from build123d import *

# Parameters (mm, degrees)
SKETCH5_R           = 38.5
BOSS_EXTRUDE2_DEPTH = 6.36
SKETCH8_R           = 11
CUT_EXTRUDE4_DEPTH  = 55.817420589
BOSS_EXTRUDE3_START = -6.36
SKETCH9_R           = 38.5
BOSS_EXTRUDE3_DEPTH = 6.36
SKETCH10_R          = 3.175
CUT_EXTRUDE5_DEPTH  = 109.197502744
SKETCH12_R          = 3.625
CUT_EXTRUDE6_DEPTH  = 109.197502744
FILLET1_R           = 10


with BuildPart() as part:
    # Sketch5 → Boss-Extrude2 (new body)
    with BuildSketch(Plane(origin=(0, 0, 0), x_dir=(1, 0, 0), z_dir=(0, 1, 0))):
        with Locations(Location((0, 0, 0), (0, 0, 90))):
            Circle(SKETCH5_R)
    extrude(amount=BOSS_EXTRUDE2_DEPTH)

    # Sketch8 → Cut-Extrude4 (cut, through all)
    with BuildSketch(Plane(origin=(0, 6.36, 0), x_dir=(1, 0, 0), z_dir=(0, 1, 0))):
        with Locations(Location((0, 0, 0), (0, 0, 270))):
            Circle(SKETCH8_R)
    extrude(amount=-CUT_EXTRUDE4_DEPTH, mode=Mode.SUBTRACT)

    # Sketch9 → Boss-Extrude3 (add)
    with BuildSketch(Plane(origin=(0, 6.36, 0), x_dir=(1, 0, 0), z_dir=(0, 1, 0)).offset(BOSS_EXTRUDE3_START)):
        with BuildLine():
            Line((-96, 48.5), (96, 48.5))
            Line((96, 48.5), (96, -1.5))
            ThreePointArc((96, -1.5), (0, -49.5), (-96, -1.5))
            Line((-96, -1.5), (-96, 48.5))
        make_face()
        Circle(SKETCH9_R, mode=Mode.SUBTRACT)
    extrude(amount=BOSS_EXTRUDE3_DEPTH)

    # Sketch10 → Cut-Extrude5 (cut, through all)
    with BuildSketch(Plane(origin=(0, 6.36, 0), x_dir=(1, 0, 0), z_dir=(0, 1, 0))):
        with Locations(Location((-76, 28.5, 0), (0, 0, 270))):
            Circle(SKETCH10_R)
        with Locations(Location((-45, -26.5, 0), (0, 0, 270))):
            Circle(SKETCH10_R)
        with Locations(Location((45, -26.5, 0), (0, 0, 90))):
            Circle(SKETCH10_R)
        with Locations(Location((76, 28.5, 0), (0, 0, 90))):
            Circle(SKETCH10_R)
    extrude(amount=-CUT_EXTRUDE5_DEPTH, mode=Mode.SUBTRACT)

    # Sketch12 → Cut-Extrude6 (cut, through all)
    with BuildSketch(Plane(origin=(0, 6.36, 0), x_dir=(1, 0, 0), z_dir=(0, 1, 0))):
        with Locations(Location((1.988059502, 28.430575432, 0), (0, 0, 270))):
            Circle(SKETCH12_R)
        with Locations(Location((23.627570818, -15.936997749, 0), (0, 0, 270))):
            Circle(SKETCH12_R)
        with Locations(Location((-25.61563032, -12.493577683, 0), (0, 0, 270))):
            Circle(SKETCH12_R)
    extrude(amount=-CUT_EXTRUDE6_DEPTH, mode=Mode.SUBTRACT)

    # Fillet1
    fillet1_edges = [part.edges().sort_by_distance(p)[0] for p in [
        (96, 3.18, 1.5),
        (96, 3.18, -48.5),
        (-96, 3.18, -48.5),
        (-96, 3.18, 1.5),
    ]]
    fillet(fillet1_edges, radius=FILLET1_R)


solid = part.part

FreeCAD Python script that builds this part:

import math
import FreeCAD as App
import Part
import Sketcher

V = App.Vector
Q = App.Units.Quantity


def edges_at(feature, points):
    """Names of the edges that pass closest to the given points."""
    edges = feature.Shape.Edges
    near = lambda p: min(range(len(edges)), key=lambda i: edges[i].distToShape(Part.Vertex(*p))[0])
    return sorted({f"Edge{near(p) + 1}" for p in points})

doc = App.newDocument("Part")
body = doc.addObject("PartDesign::Body", "Body")

sketch1 = body.newObject("Sketcher::SketchObject", "Sketch")
sketch1.AttachmentSupport = (doc.getObject("XZ_Plane"), [""])
sketch1.MapMode = "FlatFace"
sketch1.addGeometry(Part.Circle(V(0, 0, 0), V(0, 0, 1), 38), False)
sketch1.addConstraint(Sketcher.Constraint("Coincident", 0, 3, -1, 1))
sketch1.addConstraint(Sketcher.Constraint("Diameter", 0, Q("77 mm")))
pad1 = body.newObject("PartDesign::Pad", "Pad")
pad1.Profile = sketch1
pad1.Length = 6.36
pad1.Reversed = True

sketch2 = body.newObject("Sketcher::SketchObject", "Sketch001")
sketch2.AttachmentSupport = (doc.getObject("XZ_Plane"), [""])
sketch2.MapMode = "FlatFace"
sketch2.AttachmentOffset = App.Placement(V(0, 0, -6.36), App.Rotation())
sketch2.addGeometry(Part.Circle(V(0, 0, 0), V(0, 0, 1), 11), False)
sketch2.addConstraint(Sketcher.Constraint("Coincident", 0, 3, -1, 1))
sketch2.addConstraint(Sketcher.Constraint("Diameter", 0, Q("22 mm")))
pocket1 = body.newObject("PartDesign::Pocket", "Pocket")
pocket1.Profile = sketch2
pocket1.Type = "ThroughAll"
pocket1.Reversed = True

sketch3 = body.newObject("Sketcher::SketchObject", "Sketch002")
sketch3.AttachmentSupport = (doc.getObject("XZ_Plane"), [""])
sketch3.MapMode = "FlatFace"
sketch3.addGeometry(Part.LineSegment(V(96, -48, 0), V(-96, -48, 0)), False)
sketch3.addGeometry(Part.LineSegment(V(-96, -48, 0), V(-96, 2, 0)), False)
sketch3.addGeometry(Part.ArcOfCircle(Part.Circle(V(0, -70, 0), V(0, 0, 1), 120), math.radians(37), math.radians(143)), False)
sketch3.addGeometry(Part.LineSegment(V(96, 2, 0), V(96, -48, 0)), False)
sketch3.addGeometry(Part.Circle(V(0, 0, 0), V(0, 0, 1), 38), False)
sketch3.addConstraint(Sketcher.Constraint("Coincident", 0, 2, 1, 1))
sketch3.addConstraint(Sketcher.Constraint("Coincident", 1, 2, 2, 2))
sketch3.addConstraint(Sketcher.Constraint("Coincident", 2, 1, 3, 1))
sketch3.addConstraint(Sketcher.Constraint("Coincident", 3, 2, 0, 1))
sketch3.addConstraint(Sketcher.Constraint("Horizontal", 0))
sketch3.addConstraint(Sketcher.Constraint("Vertical", 1))
sketch3.addConstraint(Sketcher.Constraint("Vertical", 3))
sketch3.addConstraint(Sketcher.Constraint("Coincident", 4, 3, -1, 1))
sketch3.addConstraint(Sketcher.Constraint("Symmetric", 1, 2, 2, 1, -2))
sketch3.addConstraint(Sketcher.Constraint("Diameter", 4, Q("77 mm")))
sketch3.addConstraint(Sketcher.Constraint("Radius", 2, Q("120 mm")))
sketch3.addConstraint(Sketcher.Constraint("DistanceX", 0, 2, 0, 1, Q("192 mm")))
sketch3.addConstraint(Sketcher.Constraint("DistanceY", 1, 1, 1, 2, Q("50 mm")))
sketch3.addConstraint(Sketcher.Constraint("DistanceY", 2, 3, -1, 1, Q("70.5 mm")))
pad2 = body.newObject("PartDesign::Pad", "Pad001")
pad2.Profile = sketch3
pad2.Length = 6.36
pad2.Reversed = True

sketch4 = body.newObject("Sketcher::SketchObject", "Sketch003")
sketch4.AttachmentSupport = (doc.getObject("XZ_Plane"), [""])
sketch4.MapMode = "FlatFace"
sketch4.AttachmentOffset = App.Placement(V(0, 0, -6.36), App.Rotation())
sketch4.addGeometry(Part.Circle(V(-76, -28.5, 0), V(0, 0, 1), 3.2), False)
sketch4.addGeometry(Part.Circle(V(-45, 26.5, 0), V(0, 0, 1), 3.2), False)
sketch4.addGeometry(Part.Circle(V(45, 26.5, 0), V(0, 0, 1), 3.2), False)
sketch4.addGeometry(Part.Circle(V(76, -28.5, 0), V(0, 0, 1), 3.2), False)
sketch4.addConstraint(Sketcher.Constraint("Equal", 0, 1))
sketch4.addConstraint(Sketcher.Constraint("Equal", 1, 2))
sketch4.addConstraint(Sketcher.Constraint("Equal", 2, 3))
sketch4.addConstraint(Sketcher.Constraint("Symmetric", 1, 3, 2, 3, -2))
sketch4.addConstraint(Sketcher.Constraint("Symmetric", 0, 3, 3, 3, -2))
sketch4.addConstraint(Sketcher.Constraint("Diameter", 0, Q("6.35 mm")))
sketch4.addConstraint(Sketcher.Constraint("DistanceX", 0, 3, -1, 1, Q("76 mm")))
sketch4.addConstraint(Sketcher.Constraint("DistanceX", 1, 3, -1, 1, Q("45 mm")))
sketch4.addConstraint(Sketcher.Constraint("DistanceY", 0, 3, 1, 3, Q("55 mm")))
sketch4.addConstraint(Sketcher.Constraint("DistanceY", 0, 3, -1, 1, Q("28.5 mm")))
pocket2 = body.newObject("PartDesign::Pocket", "Pocket001")
pocket2.Profile = sketch4
pocket2.Type = "ThroughAll"
pocket2.Reversed = True

sketch5 = body.newObject("Sketcher::SketchObject", "Sketch004")
sketch5.AttachmentSupport = (doc.getObject("XZ_Plane"), [""])
sketch5.MapMode = "FlatFace"
sketch5.AttachmentOffset = App.Placement(V(0, 0, -6.36), App.Rotation())
sketch5.addGeometry(Part.Circle(V(2, -28.4, 0), V(0, 0, 1), 3.6), False)
sketch5.addGeometry(Part.Circle(V(23.6, 15.9, 0), V(0, 0, 1), 3.6), False)
sketch5.addGeometry(Part.Circle(V(-25.6, 12.5, 0), V(0, 0, 1), 3.6), False)
sketch5.addConstraint(Sketcher.Constraint("Equal", 0, 1))
sketch5.addConstraint(Sketcher.Constraint("Equal", 1, 2))
sketch5.addConstraint(Sketcher.Constraint("Diameter", 0, Q("7.25 mm")))
sketch5.addConstraint(Sketcher.Constraint("DistanceX", 2, 3, 1, 3, Q("49.243201 mm")))
sketch5.addConstraint(Sketcher.Constraint("DistanceX", -1, 1, 0, 3, Q("1.98806 mm")))
sketch5.addConstraint(Sketcher.Constraint("DistanceX", -1, 1, 1, 3, Q("23.627571 mm")))
sketch5.addConstraint(Sketcher.Constraint("DistanceY", 2, 3, 1, 3, Q("3.44342 mm")))
sketch5.addConstraint(Sketcher.Constraint("DistanceY", 0, 3, -1, 1, Q("28.430575 mm")))
sketch5.addConstraint(Sketcher.Constraint("DistanceY", -1, 1, 1, 3, Q("15.936998 mm")))
pocket3 = body.newObject("PartDesign::Pocket", "Pocket002")
pocket3.Profile = sketch5
pocket3.Type = "ThroughAll"
pocket3.Reversed = True
doc.recompute()

fillet = body.newObject("PartDesign::Fillet", "Fillet")
fillet.Base = (pocket3, edges_at(pocket3, [
    (96, 3.18, 1.5),
    (96, 3.18, -48.5),
    (-96, 3.18, -48.5),
    (-96, 3.18, 1.5),
]))
fillet.Radius = 10

doc.recompute()
